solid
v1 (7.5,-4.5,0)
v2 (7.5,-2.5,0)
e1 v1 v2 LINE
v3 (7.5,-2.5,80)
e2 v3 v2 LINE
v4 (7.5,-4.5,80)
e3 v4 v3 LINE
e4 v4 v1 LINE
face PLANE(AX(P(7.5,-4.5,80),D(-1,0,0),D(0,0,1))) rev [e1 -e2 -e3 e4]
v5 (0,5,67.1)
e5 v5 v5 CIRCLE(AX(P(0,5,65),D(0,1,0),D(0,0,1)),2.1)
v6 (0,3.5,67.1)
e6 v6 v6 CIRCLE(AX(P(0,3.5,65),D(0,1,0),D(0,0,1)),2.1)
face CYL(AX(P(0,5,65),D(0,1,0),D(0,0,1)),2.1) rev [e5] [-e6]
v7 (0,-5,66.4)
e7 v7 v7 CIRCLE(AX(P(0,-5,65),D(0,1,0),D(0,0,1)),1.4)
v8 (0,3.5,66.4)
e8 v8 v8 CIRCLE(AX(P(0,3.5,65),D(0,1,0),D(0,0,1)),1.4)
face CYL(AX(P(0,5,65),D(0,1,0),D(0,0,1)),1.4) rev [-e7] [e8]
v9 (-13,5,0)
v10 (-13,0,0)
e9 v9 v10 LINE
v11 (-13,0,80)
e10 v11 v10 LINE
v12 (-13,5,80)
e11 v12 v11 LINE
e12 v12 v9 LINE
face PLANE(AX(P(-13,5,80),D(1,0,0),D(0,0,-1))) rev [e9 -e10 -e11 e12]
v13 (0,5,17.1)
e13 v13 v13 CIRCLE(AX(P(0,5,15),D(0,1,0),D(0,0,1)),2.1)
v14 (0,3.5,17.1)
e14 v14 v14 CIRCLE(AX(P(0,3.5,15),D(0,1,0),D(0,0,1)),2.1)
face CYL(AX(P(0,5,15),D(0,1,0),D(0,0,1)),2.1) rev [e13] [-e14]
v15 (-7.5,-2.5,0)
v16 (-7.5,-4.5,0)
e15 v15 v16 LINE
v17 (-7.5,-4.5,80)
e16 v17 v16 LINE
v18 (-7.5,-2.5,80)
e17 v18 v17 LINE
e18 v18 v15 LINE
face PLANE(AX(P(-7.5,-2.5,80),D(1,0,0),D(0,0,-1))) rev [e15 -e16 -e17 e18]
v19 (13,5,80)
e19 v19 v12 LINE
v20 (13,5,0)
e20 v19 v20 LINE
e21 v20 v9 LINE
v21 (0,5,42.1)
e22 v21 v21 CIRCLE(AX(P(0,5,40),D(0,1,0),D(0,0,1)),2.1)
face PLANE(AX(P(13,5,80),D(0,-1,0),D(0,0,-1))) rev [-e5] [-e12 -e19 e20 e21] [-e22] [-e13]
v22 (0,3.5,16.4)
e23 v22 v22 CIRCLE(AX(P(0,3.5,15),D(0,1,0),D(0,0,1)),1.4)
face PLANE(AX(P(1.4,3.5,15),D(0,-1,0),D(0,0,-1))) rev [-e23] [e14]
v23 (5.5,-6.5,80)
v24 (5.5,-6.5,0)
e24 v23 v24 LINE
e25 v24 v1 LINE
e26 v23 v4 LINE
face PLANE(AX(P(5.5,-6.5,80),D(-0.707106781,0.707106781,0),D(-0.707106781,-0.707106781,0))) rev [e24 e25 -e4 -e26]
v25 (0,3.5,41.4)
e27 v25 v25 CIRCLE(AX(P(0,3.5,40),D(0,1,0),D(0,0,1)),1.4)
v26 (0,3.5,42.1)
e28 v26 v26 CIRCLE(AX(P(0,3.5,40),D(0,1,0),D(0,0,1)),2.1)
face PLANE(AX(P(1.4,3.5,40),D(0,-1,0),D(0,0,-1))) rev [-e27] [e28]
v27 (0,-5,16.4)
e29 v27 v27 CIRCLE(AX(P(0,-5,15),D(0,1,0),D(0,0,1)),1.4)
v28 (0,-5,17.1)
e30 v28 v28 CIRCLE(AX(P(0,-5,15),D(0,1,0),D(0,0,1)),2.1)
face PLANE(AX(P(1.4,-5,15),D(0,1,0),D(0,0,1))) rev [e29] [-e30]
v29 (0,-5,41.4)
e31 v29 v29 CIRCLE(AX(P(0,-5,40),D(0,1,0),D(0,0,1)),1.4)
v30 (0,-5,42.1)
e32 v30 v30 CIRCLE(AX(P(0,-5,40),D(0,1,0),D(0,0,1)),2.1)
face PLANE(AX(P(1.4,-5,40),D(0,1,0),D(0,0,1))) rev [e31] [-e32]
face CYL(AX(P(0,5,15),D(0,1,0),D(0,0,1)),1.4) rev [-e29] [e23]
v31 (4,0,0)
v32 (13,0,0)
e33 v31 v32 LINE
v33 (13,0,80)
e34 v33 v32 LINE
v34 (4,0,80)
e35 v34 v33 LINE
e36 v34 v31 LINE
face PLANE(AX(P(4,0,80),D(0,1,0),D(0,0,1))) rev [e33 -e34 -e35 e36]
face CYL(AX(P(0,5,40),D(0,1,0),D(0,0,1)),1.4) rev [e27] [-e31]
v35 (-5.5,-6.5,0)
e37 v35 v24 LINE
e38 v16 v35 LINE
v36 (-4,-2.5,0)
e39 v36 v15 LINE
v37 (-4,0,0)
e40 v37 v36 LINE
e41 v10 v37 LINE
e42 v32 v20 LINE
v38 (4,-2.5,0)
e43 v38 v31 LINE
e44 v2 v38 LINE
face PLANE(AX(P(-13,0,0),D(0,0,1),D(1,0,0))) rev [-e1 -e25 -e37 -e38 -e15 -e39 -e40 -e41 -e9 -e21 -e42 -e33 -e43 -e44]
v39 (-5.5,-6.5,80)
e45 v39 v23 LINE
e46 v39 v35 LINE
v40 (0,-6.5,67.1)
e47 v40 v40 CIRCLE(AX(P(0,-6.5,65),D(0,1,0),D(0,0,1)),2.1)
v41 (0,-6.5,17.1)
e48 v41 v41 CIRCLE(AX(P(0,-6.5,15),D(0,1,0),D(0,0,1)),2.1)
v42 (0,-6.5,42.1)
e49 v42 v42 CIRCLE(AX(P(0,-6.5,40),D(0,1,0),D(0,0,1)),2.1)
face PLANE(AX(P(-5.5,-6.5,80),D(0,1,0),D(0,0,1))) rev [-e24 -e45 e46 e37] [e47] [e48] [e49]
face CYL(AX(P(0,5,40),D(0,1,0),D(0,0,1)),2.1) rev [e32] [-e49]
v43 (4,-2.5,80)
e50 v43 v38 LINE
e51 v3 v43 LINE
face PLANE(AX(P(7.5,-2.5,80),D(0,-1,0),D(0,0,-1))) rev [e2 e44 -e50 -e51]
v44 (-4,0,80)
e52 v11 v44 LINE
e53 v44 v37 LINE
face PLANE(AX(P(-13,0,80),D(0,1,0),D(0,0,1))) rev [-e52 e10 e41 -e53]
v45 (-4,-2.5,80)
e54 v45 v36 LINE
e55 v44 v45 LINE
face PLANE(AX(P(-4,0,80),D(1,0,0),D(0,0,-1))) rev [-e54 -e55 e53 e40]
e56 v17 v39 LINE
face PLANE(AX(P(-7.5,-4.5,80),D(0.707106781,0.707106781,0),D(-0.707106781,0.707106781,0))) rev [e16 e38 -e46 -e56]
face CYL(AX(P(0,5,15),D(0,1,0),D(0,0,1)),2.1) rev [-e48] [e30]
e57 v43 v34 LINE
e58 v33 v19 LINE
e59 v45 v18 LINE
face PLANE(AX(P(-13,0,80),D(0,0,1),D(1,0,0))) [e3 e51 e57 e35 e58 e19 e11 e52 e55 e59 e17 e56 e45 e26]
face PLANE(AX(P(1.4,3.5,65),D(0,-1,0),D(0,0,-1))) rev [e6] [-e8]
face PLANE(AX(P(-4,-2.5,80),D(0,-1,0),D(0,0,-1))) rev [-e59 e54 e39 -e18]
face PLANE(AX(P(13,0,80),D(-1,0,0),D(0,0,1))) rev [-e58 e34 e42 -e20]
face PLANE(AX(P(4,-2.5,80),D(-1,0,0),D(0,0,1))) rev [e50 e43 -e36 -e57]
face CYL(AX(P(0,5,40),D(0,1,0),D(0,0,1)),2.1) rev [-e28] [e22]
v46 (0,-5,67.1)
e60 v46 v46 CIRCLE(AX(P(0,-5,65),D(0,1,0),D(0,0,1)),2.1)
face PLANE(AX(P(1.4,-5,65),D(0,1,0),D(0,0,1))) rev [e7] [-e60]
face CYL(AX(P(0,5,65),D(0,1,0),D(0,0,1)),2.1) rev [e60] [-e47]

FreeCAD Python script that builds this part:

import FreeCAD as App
import Part
import Sketcher
from FreeCAD import Vector
Q = App.Units.Quantity

doc = App.newDocument("Part")
body = doc.addObject("PartDesign::Body", "Body")

# Sketch on XY plane
sketch1 = doc.addObject("Sketcher::SketchObject", "Sketch")
body.addObject(sketch1)
sketch1.AttachmentSupport = (doc.XY_Plane, [""])
sketch1.MapMode = "FlatFace"
sketch1.addGeometry(Part.LineSegment(Vector(-13, 0, 0), Vector(-4, 0, 0)), False)
sketch1.addGeometry(Part.LineSegment(Vector(-4, 0, 0), Vector(-4, -2.5, 0)), False)
sketch1.addGeometry(Part.LineSegment(Vector(-4, -2.5, 0), Vector(-7.5, -2.5, 0)), False)
sketch1.addGeometry(Part.LineSegment(Vector(-7.5, -2.5, 0), Vector(-7.5, -4.5, 0)), False)
sketch1.addGeometry(Part.LineSegment(Vector(-7.5, -4.5, 0), Vector(-5.5, -6.5, 0)), False)
sketch1.addGeometry(Part.LineSegment(Vector(-5.5, -6.5, 0), Vector(5.5, -6.5, 0)), False)
sketch1.addGeometry(Part.LineSegment(Vector(5.5, -6.5, 0), Vector(7.5, -4.5, 0)), False)
sketch1.addGeometry(Part.LineSegment(Vector(7.5, -4.5, 0), Vector(7.5, -2.5, 0)), False)
sketch1.addGeometry(Part.LineSegment(Vector(7.5, -2.5, 0), Vector(4, -2.5, 0)), False)
sketch1.addGeometry(Part.LineSegment(Vector(4, -2.5, 0), Vector(4, 0, 0)), False)
sketch1.addGeometry(Part.LineSegment(Vector(4, 0, 0), Vector(13, 0, 0)), False)
sketch1.addGeometry(Part.LineSegment(Vector(13, 0, 0), Vector(13, 5, 0)), False)
sketch1.addGeometry(Part.LineSegment(Vector(13, 5, 0), Vector(-13, 5, 0)), False)
sketch1.addGeometry(Part.LineSegment(Vector(-13, 5, 0), Vector(-13, 0, 0)), False)
sketch1.addConstraint(Sketcher.Constraint("Coincident", 0, 2, 1, 1))
sketch1.addConstraint(Sketcher.Constraint("Coincident", 1, 2, 2, 1))
sketch1.addConstraint(Sketcher.Constraint("Coincident", 2, 2, 3, 1))
sketch1.addConstraint(Sketcher.Constraint("Coincident", 3, 2, 4, 1))
sketch1.addConstraint(Sketcher.Constraint("Coincident", 4, 2, 5, 1))
sketch1.addConstraint(Sketcher.Constraint("Coincident", 5, 2, 6, 1))
sketch1.addConstraint(Sketcher.Constraint("Coincident", 6, 2, 7, 1))
sketch1.addConstraint(Sketcher.Constraint("Coincident", 7, 2, 8, 1))
sketch1.addConstraint(Sketcher.Constraint("Coincident", 8, 2, 9, 1))
sketch1.addConstraint(Sketcher.Constraint("Coincident", 9, 2, 10, 1))
sketch1.addConstraint(Sketcher.Constraint("Coincident", 10, 2, 11, 1))
sketch1.addConstraint(Sketcher.Constraint("Coincident", 11, 2, 12, 1))
sketch1.addConstraint(Sketcher.Constraint("Coincident", 12, 2, 13, 1))
sketch1.addConstraint(Sketcher.Constraint("Coincident", 13, 2, 0, 1))
sketch1.addConstraint(Sketcher.Constraint("Horizontal", 0))
sketch1.addConstraint(Sketcher.Constraint("Vertical", 1))
sketch1.addConstraint(Sketcher.Constraint("Horizontal", 2))
sketch1.addConstraint(Sketcher.Constraint("Vertical", 3))
sketch1.addConstraint(Sketcher.Constraint("Horizontal", 5))
sketch1.addConstraint(Sketcher.Constraint("Vertical", 7))
sketch1.addConstraint(Sketcher.Constraint("Horizontal", 8))
sketch1.addConstraint(Sketcher.Constraint("Vertical", 9))
sketch1.addConstraint(Sketcher.Constraint("Horizontal", 10))
sketch1.addConstraint(Sketcher.Constraint("Vertical", 11))
sketch1.addConstraint(Sketcher.Constraint("Horizontal", 12))
sketch1.addConstraint(Sketcher.Constraint("Vertical", 13))
sketch1.addConstraint(Sketcher.Constraint("Symmetric", 0, 2, 9, 2, -1, 1))
sketch1.addConstraint(Sketcher.Constraint("Symmetric", 3, 2, 6, 2, -2))
sketch1.addConstraint(Sketcher.Constraint("Symmetric", 10, 2, 13, 2, -2))
sketch1.addConstraint(Sketcher.Constraint("Perpendicular", 4, 6))
sketch1.addConstraint(Sketcher.Constraint("Horizontal", 2, 2, 7, 2))
sketch1.addConstraint(Sketcher.Constraint("Equal", 4, 6))
sketch1.addConstraint(Sketcher.Constraint("DistanceX", 0, 1, 0, 2, Q("9 mm")))
sketch1.addConstraint(Sketcher.Constraint("DistanceX", 5, 1, 5, 2, Q("11 mm")))
sketch1.addConstraint(Sketcher.Constraint("DistanceX", 12, 2, 12, 1, Q("26 mm")))
sketch1.addConstraint(Sketcher.Constraint("DistanceY", 3, 2, 3, 1, Q("2 mm")))
sketch1.addConstraint(Sketcher.Constraint("DistanceY", 11, 1, 11, 2, Q("5 mm")))
sketch1.addConstraint(Sketcher.Constraint("DistanceX", 2, 2, 2, 1, Q("3.5 mm")))
sketch1.addConstraint(Sketcher.Constraint("DistanceY", 1, 2, 1, 1, Q("2.5 mm")))
pad1 = doc.addObject("PartDesign::Pad", "Pad")
body.addObject(pad1)
pad1.Profile = sketch1
pad1.Length = 80

# Sketch on YZ plane
sketch2 = doc.addObject("Sketcher::SketchObject", "Sketch001")
body.addObject(sketch2)
sketch2.AttachmentSupport = (doc.YZ_Plane, [""])
sketch2.MapMode = "FlatFace"
sketch2.addGeometry(Part.LineSegment(Vector(-6.5, 65, 0), Vector(5, 65, 0)), False)
sketch2.addGeometry(Part.LineSegment(Vector(5, 65, 0), Vector(5, 67.1, 0)), False)
sketch2.addGeometry(Part.LineSegment(Vector(5, 67.1, 0), Vector(3.5, 67.1, 0)), False)
sketch2.addGeometry(Part.LineSegment(Vector(3.5, 67.1, 0), Vector(3.5, 66.4, 0)), False)
sketch2.addGeometry(Part.LineSegment(Vector(3.5, 66.4, 0), Vector(-5, 66.4, 0)), False)
sketch2.addGeometry(Part.LineSegment(Vector(-5, 66.4, 0), Vector(-5, 67.1, 0)), False)
sketch2.addGeometry(Part.LineSegment(Vector(-5, 67.1, 0), Vector(-6.5, 67.1, 0)), False)
sketch2.addGeometry(Part.LineSegment(Vector(-6.5, 67.1, 0), Vector(-6.5, 65, 0)), False)
sketch2.addGeometry(Part.LineSegment(Vector(5, 65, 0), Vector(-6.5, 65, 0)), True)  # axis
sketch2.addConstraint(Sketcher.Constraint("Coincident", 0, 2, 1, 1))
sketch2.addConstraint(Sketcher.Constraint("Coincident", 1, 2, 2, 1))
sketch2.addConstraint(Sketcher.Constraint("Coincident", 2, 2, 3, 1))
sketch2.addConstraint(Sketcher.Constraint("Coincident", 3, 2, 4, 1))
sketch2.addConstraint(Sketcher.Constraint("Coincident", 4, 2, 5, 1))
sketch2.addConstraint(Sketcher.Constraint("Coincident", 5, 2, 6, 1))
sketch2.addConstraint(Sketcher.Constraint("Coincident", 6, 2, 7, 1))
sketch2.addConstraint(Sketcher.Constraint("Coincident", 7, 2, 0, 1))
sketch2.addConstraint(Sketcher.Constraint("Horizontal", 0))
sketch2.addConstraint(Sketcher.Constraint("Vertical", 1))
sketch2.addConstraint(Sketcher.Constraint("Horizontal", 2))
sketch2.addConstraint(Sketcher.Constraint("Vertical", 3))
sketch2.addConstraint(Sketcher.Constraint("Horizontal", 4))
sketch2.addConstraint(Sketcher.Constraint("Vertical", 5))
sketch2.addConstraint(Sketcher.Constraint("Horizontal", 6))
sketch2.addConstraint(Sketcher.Constraint("Vertical", 7))
sketch2.addConstraint(Sketcher.Constraint("Horizontal", 8))
sketch2.addConstraint(Sketcher.Constraint("Coincident", 8, 1, 0, 2))
sketch2.addConstraint(Sketcher.Constraint("Symmetric", 1, 2, 5, 2, -2))
sketch2.addConstraint(Sketcher.Constraint("Vertical", 6, 2, 8, 2))
sketch2.addConstraint(Sketcher.Constraint("Equal", 2, 6))
sketch2.addConstraint(Sketcher.Constraint("DistanceX", 0, 1, 0, 2, Q("11.5 mm")))
sketch2.addConstraint(Sketcher.Constraint("DistanceX", 2, 2, 2, 1, Q("1.5 mm")))
sketch2.addConstraint(Sketcher.Constraint("DistanceY", 1, 1, 1, 2, Q("2.1 mm")))
sketch2.addConstraint(Sketcher.Constraint("DistanceY", 3, 2, 3, 1, Q("0.7 mm")))
sketch2.addConstraint(Sketcher.Constraint("DistanceY", -1, 1, 0, 2, Q("65 mm")))
groove = doc.addObject("PartDesign::Groove", "Groove")
body.addObject(groove)
groove.Profile = sketch2
groove.ReferenceAxis = (sketch2, ["Axis0"])
groove.Angle = 360
doc.recompute()

linearpattern = doc.addObject("PartDesign::LinearPattern", "LinearPattern")
body.addObject(linearpattern)
linearpattern.Originals = [groove]
linearpattern.Direction = (doc.Z_Axis, [""])
linearpattern.Mode = "offset"
linearpattern.Offset = 25
linearpattern.Occurrences = 2
linearpattern.Reversed = True
body.Tip = linearpattern
doc.recompute()

linearpattern2 = doc.addObject("PartDesign::LinearPattern", "LinearPattern001")
body.addObject(linearpattern2)
linearpattern2.Originals = [groove]
linearpattern2.Direction = (doc.Z_Axis, [""])
linearpattern2.Mode = "offset"
linearpattern2.Offset = 50
linearpattern2.Occurrences = 2
linearpattern2.Reversed = True
body.Tip = linearpattern2

doc.recompute()
